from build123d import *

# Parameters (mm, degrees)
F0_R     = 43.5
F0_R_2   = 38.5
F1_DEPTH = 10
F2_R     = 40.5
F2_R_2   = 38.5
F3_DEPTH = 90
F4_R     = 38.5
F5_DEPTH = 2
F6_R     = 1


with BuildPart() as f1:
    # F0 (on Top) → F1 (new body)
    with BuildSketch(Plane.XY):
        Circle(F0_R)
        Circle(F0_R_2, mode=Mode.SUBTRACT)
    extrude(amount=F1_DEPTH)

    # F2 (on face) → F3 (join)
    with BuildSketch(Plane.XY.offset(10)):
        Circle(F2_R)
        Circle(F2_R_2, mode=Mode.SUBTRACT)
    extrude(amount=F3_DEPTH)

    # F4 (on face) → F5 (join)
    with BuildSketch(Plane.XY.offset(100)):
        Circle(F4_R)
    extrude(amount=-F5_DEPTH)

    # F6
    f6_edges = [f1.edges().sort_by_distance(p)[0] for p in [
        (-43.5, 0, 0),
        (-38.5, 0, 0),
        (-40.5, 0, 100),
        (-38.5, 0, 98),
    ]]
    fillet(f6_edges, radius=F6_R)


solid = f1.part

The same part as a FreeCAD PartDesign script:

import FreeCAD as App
import Part
import Sketcher
from FreeCAD import Vector
Q = App.Units.Quantity


def edges_at(feature, points):
    """Names of the edges that pass closest to the given points."""
    edges = feature.Shape.Edges
    near = lambda p: min(range(len(edges)), key=lambda i: edges[i].distToShape(Part.Vertex(*p))[0])
    return sorted({f"Edge{near(p) + 1}" for p in points})

doc = App.newDocument("Part")
params = doc.addObject("Spreadsheet::Sheet", "Params")
for row, (alias, value) in enumerate([
    ("sketch1_diameter", "87 mm"),
    ("sketch1_diameter2", "77 mm"),
    ("pad1_length", "10 mm"),
    ("sketch2_diameter", "81 mm"),
    ("sketch2_diameter2", "77 mm"),
    ("pad2_length", "90 mm"),
    ("sketch3_diameter", "77 mm"),
    ("pad3_length", "2 mm"),
    ("fillet_radius", "1 mm"),
], start=1):
    params.set(f"A{row}", alias)
    params.set(f"B{row}", "=" + value)
    params.setAlias(f"B{row}", alias)

body = doc.addObject("PartDesign::Body", "Body")

# Sketch on XY plane
sketch1 = body.newObject("Sketcher::SketchObject", "Sketch")
sketch1.AttachmentSupport = (doc.getObject("XY_Plane"), [""])
sketch1.MapMode = "FlatFace"
sketch1.addGeometry([
    Part.Circle(Vector(0, 0, 0), Vector(0, 0, 1), 44),
    Part.Circle(Vector(0, 0, 0), Vector(0, 0, 1), 38),
], False)
sketch1.addConstraint([
    Sketcher.Constraint("Coincident", 0, 3, -1, 1),
    Sketcher.Constraint("Coincident", 1, 3, -1, 1),
    Sketcher.Constraint("Diameter", 0, Q("87 mm")),
    Sketcher.Constraint("Diameter", 1, Q("77 mm")),
])
sketch1.setExpression("Constraints[2]", "Params.sketch1_diameter")
sketch1.setExpression("Constraints[3]", "Params.sketch1_diameter2")
pad1 = body.newObject("PartDesign::Pad", "Pad")
pad1.Profile = sketch1
pad1.setExpression("Length", "Params.pad1_length")

# Sketch on XY plane
sketch2 = body.newObject("Sketcher::SketchObject", "Sketch001")
sketch2.AttachmentSupport = (doc.getObject("XY_Plane"), [""])
sketch2.MapMode = "FlatFace"
sketch2.AttachmentOffset = App.Placement(Vector(0, 0, 10), App.Rotation())
sketch2.addGeometry([
    Part.Circle(Vector(0, 0, 0), Vector(0, 0, 1), 40),
    Part.Circle(Vector(0, 0, 0), Vector(0, 0, 1), 38),
], False)
sketch2.addConstraint([
    Sketcher.Constraint("Coincident", 0, 3, -1, 1),
    Sketcher.Constraint("Coincident", 1, 3, -1, 1),
    Sketcher.Constraint("Diameter", 0, Q("81 mm")),
    Sketcher.Constraint("Diameter", 1, Q("77 mm")),
])
sketch2.setExpression("Constraints[2]", "Params.sketch2_diameter")
sketch2.setExpression("Constraints[3]", "Params.sketch2_diameter2")
pad2 = body.newObject("PartDesign::Pad", "Pad001")
pad2.Profile = sketch2
pad2.setExpression("Length", "Params.pad2_length")

# Sketch on XY plane
sketch3 = body.newObject("Sketcher::SketchObject", "Sketch002")
sketch3.AttachmentSupport = (doc.getObject("XY_Plane"), [""])
sketch3.MapMode = "FlatFace"
sketch3.AttachmentOffset = App.Placement(Vector(0, 0, 100), App.Rotation())
sketch3.addGeometry(Part.Circle(Vector(0, 0, 0), Vector(0, 0, 1), 38), False)
sketch3.addConstraint([
    Sketcher.Constraint("Coincident", 0, 3, -1, 1),
    Sketcher.Constraint("Diameter", 0, Q("77 mm")),
])
sketch3.setExpression("Constraints[1]", "Params.sketch3_diameter")
pad3 = body.newObject("PartDesign::Pad", "Pad002")
pad3.Profile = sketch3
pad3.setExpression("Length", "Params.pad3_length")
pad3.Reversed = True
doc.recompute()

fillet = body.newObject("PartDesign::Fillet", "Fillet")
fillet.Base = (pad3, edges_at(pad3, [
    (-43.5, 0, 0),
    (-38.5, 0, 0),
    (-40.5, 0, 100),
    (-38.5, 0, 98),
]))
fillet.setExpression("Radius", "Params.fillet_radius")

doc.recompute()
